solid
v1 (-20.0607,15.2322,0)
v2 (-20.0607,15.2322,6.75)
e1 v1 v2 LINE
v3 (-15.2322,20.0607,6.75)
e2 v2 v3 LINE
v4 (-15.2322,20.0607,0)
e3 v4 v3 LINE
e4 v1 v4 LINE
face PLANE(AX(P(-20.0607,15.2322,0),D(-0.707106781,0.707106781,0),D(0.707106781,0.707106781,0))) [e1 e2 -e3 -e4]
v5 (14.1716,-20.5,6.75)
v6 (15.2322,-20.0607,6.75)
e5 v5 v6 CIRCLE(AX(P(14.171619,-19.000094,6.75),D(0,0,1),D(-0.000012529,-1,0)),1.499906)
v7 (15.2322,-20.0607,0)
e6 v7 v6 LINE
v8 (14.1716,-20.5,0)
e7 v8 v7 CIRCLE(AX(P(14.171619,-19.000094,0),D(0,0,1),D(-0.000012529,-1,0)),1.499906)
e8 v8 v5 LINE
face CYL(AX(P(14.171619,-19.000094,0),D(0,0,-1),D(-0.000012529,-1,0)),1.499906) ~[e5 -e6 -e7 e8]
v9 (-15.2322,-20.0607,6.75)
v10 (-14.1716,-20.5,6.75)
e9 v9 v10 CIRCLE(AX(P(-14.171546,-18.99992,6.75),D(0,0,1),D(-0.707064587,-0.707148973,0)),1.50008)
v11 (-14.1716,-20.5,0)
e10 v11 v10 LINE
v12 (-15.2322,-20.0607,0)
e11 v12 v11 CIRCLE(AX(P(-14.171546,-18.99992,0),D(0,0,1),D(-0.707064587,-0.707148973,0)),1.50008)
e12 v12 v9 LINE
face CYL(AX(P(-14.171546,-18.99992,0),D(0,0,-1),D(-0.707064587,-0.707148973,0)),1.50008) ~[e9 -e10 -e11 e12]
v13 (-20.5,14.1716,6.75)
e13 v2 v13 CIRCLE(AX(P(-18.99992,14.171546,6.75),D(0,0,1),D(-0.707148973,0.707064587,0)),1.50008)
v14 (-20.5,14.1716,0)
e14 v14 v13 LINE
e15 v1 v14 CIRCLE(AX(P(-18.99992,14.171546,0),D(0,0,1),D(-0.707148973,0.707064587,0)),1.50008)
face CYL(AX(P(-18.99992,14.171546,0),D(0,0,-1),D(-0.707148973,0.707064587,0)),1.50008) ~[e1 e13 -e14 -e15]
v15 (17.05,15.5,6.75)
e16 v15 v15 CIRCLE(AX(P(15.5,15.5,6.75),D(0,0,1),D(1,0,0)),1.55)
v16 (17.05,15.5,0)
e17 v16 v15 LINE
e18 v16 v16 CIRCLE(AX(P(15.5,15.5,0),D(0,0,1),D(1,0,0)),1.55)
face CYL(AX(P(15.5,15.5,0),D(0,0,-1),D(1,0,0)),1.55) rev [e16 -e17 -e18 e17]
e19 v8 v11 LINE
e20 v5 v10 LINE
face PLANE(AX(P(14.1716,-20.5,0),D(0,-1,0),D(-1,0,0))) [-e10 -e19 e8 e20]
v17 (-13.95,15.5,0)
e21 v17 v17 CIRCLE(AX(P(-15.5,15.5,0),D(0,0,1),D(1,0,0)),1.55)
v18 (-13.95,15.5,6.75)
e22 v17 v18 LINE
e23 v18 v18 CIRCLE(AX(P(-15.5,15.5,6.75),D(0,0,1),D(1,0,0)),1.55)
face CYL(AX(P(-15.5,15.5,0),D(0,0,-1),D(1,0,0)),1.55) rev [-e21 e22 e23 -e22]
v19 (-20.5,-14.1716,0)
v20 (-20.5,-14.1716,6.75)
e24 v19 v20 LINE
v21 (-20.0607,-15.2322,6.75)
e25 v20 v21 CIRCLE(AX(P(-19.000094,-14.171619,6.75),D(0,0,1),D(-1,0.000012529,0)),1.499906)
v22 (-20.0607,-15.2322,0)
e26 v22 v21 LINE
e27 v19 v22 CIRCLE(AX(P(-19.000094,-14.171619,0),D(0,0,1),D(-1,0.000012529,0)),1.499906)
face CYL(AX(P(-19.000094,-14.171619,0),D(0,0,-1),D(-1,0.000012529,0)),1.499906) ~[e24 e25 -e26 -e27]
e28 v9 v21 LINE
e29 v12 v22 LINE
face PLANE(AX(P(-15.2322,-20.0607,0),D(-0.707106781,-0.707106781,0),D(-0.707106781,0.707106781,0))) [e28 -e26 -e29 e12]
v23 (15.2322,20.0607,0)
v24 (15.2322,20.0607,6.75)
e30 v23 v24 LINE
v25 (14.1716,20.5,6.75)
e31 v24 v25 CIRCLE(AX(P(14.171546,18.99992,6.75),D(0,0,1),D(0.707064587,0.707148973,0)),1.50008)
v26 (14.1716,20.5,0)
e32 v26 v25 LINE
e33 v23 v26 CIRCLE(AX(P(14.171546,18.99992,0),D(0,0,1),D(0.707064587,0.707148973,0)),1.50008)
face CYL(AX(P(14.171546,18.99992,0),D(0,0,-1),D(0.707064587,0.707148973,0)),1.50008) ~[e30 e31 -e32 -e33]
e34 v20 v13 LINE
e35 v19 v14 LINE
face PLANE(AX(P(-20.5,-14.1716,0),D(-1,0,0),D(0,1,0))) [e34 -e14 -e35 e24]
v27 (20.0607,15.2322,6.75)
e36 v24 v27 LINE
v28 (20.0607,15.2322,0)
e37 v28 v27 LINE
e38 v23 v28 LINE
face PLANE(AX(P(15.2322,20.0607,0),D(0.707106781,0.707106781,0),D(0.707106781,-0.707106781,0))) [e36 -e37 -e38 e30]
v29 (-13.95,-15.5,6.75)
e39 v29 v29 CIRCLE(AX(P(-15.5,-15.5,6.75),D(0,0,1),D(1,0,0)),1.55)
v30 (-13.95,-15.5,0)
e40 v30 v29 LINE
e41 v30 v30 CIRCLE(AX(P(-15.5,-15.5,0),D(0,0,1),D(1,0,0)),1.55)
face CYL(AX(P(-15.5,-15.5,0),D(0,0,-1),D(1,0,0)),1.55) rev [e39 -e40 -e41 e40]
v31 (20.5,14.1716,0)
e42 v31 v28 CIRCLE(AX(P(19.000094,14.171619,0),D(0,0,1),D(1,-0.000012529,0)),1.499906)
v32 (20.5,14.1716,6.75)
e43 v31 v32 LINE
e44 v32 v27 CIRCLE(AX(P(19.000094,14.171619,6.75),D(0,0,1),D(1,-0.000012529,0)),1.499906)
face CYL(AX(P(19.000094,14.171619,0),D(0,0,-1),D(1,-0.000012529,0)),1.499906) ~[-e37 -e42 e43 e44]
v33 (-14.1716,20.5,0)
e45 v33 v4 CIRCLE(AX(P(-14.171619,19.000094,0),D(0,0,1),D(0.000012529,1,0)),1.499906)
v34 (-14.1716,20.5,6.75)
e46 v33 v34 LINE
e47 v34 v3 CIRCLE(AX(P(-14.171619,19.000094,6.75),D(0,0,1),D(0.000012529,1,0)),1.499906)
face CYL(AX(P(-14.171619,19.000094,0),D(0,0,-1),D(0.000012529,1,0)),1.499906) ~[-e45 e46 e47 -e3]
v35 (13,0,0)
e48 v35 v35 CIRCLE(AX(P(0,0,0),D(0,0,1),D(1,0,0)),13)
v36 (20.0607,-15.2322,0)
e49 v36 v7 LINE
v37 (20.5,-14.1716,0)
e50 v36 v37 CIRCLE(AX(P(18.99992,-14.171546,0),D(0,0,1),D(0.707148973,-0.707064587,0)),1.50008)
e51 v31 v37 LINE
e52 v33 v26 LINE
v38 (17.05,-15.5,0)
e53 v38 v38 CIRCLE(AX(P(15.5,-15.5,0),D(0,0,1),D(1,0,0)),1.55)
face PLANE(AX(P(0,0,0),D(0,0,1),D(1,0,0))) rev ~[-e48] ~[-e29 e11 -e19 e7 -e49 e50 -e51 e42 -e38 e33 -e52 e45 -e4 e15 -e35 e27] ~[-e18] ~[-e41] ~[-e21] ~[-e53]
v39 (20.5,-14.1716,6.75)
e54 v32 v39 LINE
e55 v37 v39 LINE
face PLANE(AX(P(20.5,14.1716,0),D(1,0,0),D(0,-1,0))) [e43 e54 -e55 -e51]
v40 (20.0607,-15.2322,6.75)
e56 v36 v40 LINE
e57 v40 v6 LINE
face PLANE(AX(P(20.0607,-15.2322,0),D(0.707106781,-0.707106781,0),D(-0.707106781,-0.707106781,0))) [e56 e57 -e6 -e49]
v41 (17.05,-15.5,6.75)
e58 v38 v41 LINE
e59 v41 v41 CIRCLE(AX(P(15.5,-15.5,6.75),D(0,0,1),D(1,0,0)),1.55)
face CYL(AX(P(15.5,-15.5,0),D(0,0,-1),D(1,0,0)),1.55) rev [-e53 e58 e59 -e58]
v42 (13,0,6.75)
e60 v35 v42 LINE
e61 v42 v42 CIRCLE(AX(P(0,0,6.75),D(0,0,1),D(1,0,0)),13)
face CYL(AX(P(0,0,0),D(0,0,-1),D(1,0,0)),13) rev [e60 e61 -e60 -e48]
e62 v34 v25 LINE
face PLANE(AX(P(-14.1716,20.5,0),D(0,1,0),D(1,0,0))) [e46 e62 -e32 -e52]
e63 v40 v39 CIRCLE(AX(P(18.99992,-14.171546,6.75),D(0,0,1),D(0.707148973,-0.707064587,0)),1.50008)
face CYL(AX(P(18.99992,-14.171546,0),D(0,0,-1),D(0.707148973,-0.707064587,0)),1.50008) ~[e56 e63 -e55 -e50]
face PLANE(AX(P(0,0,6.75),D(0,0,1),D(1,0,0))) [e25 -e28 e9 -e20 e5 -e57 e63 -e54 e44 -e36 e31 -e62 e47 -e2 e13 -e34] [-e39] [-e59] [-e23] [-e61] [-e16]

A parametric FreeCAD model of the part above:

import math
import FreeCAD as App
import Part
import Sketcher
from FreeCAD import Vector

doc = App.newDocument("Part")
body = doc.addObject("PartDesign::Body", "Body")

sketch1 = body.newObject("Sketcher::SketchObject", "Sketch")
sketch1.AttachmentSupport = (doc.getObject("XY_Plane"), [""])
sketch1.MapMode = "FlatFace"
sketch1.addGeometry([
    Part.LineSegment(Vector(14.2, 20.5, 0), Vector(-14.2, 20.5, 0)),
    Part.ArcOfCircle(Part.Circle(Vector(-14.2, 19, 0), Vector(0, 0, 1), 1.5), math.radians(90), math.radians(135)),
    Part.LineSegment(Vector(-15.2, 20.1, 0), Vector(-20.1, 15.2, 0)),
    Part.ArcOfCircle(Part.Circle(Vector(-19, 14.2, 0), Vector(0, 0, 1), 1.5), math.radians(135), math.radians(180)),
    Part.LineSegment(Vector(-20.5, 14.2, 0), Vector(-20.5, -14.2, 0)),
    Part.ArcOfCircle(Part.Circle(Vector(-19, -14.2, 0), Vector(0, 0, 1), 1.5), math.radians(180), math.radians(225)),
    Part.LineSegment(Vector(-20.1, -15.2, 0), Vector(-15.2, -20.1, 0)),
    Part.ArcOfCircle(Part.Circle(Vector(-14.2, -19, 0), Vector(0, 0, 1), 1.5), math.radians(-135), math.radians(-90)),
    Part.LineSegment(Vector(-14.2, -20.5, 0), Vector(14.2, -20.5, 0)),
    Part.ArcOfCircle(Part.Circle(Vector(14.2, -19, 0), Vector(0, 0, 1), 1.5), math.radians(-90), math.radians(-45)),
    Part.LineSegment(Vector(15.2, -20.1, 0), Vector(20.1, -15.2, 0)),
    Part.ArcOfCircle(Part.Circle(Vector(19, -14.2, 0), Vector(0, 0, 1), 1.5), math.radians(-45), math.radians(0)),
    Part.LineSegment(Vector(20.5, -14.2, 0), Vector(20.5, 14.2, 0)),
    Part.ArcOfCircle(Part.Circle(Vector(19, 14.2, 0), Vector(0, 0, 1), 1.5), math.radians(0), math.radians(45)),
    Part.LineSegment(Vector(20.1, 15.2, 0), Vector(15.2, 20.1, 0)),
    Part.ArcOfCircle(Part.Circle(Vector(14.2, 19, 0), Vector(0, 0, 1), 1.5), math.radians(45), math.radians(90)),
    Part.Circle(Vector(-15.5, -15.5, 0), Vector(0, 0, 1), 1.6),
    Part.Circle(Vector(15.5, -15.5, 0), Vector(0, 0, 1), 1.6),
    Part.Circle(Vector(-15.5, 15.5, 0), Vector(0, 0, 1), 1.6),
    Part.Circle(Vector(0, 0, 0), Vector(0, 0, 1), 13),
    Part.Circle(Vector(15.5, 15.5, 0), Vector(0, 0, 1), 1.6),
], False)
sketch1.addConstraint([
    Sketcher.Constraint("Tangent", 0, 2, 1, 1),
    Sketcher.Constraint("Tangent", 1, 2, 2, 1),
    Sketcher.Constraint("Tangent", 2, 2, 3, 1),
    Sketcher.Constraint("Tangent", 3, 2, 4, 1),
    Sketcher.Constraint("Tangent", 4, 2, 5, 1),
    Sketcher.Constraint("Tangent", 5, 2, 6, 1),
    Sketcher.Constraint("Tangent", 6, 2, 7, 1),
    Sketcher.Constraint("Tangent", 7, 2, 8, 1),
    Sketcher.Constraint("Tangent", 8, 2, 9, 1),
    Sketcher.Constraint("Tangent", 9, 2, 10, 1),
    Sketcher.Constraint("Tangent", 10, 2, 11, 1),
    Sketcher.Constraint("Tangent", 11, 2, 12, 1),
    Sketcher.Constraint("Tangent", 12, 2, 13, 1),
    Sketcher.Constraint("Tangent", 13, 2, 14, 1),
    Sketcher.Constraint("Tangent", 14, 2, 15, 1),
    Sketcher.Constraint("Tangent", 15, 2, 0, 1),
    Sketcher.Constraint("Horizontal", 0),
    Sketcher.Constraint("Vertical", 4),
    Sketcher.Constraint("Horizontal", 8),
    Sketcher.Constraint("Vertical", 12),
    Sketcher.Constraint("Coincident", 19, 3, -1, 1),
    Sketcher.Constraint("Equal", 1, 3),
    Sketcher.Constraint("Equal", 3, 5),
    Sketcher.Constraint("Equal", 5, 7),
    Sketcher.Constraint("Equal", 7, 9),
    Sketcher.Constraint("Equal", 9, 11),
    Sketcher.Constraint("Equal", 11, 13),
    Sketcher.Constraint("Equal", 13, 15),
    Sketcher.Constraint("Equal", 16, 17),
    Sketcher.Constraint("Equal", 17, 18),
    Sketcher.Constraint("Equal", 18, 20),
    Sketcher.Constraint("Symmetric", 1, 3, 9, 3, -1, 1),
    Sketcher.Constraint("Symmetric", 3, 3, 11, 3, -1, 1),
    Sketcher.Constraint("Symmetric", 17, 3, 18, 3, -1, 1),
    Sketcher.Constraint("Symmetric", 16, 3, 20, 3, -1, 1),
    Sketcher.Constraint("Symmetric", 5, 2, 13, 2, -1, 1),
    Sketcher.Constraint("Symmetric", 16, 3, 17, 3, -2),
    Sketcher.Constraint("Symmetric", 6, 2, 9, 2, -2),
    Sketcher.Constraint("Perpendicular", 2, 6),
    Sketcher.Constraint("Equal", 8, 4),
    Sketcher.Constraint("Diameter", 16, 3.1),
    Sketcher.Constraint("Diameter", 19, 26.0),
    Sketcher.Constraint("Radius", 1, 1.5),
    Sketcher.Constraint("DistanceY", -1, 1, 1, 3, 19.0),
    Sketcher.Constraint("DistanceX", 16, 3, 17, 3, 31.0),
    Sketcher.Constraint("DistanceY", 16, 3, 18, 3, 31.0),
    Sketcher.Constraint("DistanceX", 0, 2, 0, 1, 28.3432),
])
pad1 = body.newObject("PartDesign::Pad", "Pad")
pad1.Profile = sketch1
pad1.Length = 6.75

doc.recompute()
